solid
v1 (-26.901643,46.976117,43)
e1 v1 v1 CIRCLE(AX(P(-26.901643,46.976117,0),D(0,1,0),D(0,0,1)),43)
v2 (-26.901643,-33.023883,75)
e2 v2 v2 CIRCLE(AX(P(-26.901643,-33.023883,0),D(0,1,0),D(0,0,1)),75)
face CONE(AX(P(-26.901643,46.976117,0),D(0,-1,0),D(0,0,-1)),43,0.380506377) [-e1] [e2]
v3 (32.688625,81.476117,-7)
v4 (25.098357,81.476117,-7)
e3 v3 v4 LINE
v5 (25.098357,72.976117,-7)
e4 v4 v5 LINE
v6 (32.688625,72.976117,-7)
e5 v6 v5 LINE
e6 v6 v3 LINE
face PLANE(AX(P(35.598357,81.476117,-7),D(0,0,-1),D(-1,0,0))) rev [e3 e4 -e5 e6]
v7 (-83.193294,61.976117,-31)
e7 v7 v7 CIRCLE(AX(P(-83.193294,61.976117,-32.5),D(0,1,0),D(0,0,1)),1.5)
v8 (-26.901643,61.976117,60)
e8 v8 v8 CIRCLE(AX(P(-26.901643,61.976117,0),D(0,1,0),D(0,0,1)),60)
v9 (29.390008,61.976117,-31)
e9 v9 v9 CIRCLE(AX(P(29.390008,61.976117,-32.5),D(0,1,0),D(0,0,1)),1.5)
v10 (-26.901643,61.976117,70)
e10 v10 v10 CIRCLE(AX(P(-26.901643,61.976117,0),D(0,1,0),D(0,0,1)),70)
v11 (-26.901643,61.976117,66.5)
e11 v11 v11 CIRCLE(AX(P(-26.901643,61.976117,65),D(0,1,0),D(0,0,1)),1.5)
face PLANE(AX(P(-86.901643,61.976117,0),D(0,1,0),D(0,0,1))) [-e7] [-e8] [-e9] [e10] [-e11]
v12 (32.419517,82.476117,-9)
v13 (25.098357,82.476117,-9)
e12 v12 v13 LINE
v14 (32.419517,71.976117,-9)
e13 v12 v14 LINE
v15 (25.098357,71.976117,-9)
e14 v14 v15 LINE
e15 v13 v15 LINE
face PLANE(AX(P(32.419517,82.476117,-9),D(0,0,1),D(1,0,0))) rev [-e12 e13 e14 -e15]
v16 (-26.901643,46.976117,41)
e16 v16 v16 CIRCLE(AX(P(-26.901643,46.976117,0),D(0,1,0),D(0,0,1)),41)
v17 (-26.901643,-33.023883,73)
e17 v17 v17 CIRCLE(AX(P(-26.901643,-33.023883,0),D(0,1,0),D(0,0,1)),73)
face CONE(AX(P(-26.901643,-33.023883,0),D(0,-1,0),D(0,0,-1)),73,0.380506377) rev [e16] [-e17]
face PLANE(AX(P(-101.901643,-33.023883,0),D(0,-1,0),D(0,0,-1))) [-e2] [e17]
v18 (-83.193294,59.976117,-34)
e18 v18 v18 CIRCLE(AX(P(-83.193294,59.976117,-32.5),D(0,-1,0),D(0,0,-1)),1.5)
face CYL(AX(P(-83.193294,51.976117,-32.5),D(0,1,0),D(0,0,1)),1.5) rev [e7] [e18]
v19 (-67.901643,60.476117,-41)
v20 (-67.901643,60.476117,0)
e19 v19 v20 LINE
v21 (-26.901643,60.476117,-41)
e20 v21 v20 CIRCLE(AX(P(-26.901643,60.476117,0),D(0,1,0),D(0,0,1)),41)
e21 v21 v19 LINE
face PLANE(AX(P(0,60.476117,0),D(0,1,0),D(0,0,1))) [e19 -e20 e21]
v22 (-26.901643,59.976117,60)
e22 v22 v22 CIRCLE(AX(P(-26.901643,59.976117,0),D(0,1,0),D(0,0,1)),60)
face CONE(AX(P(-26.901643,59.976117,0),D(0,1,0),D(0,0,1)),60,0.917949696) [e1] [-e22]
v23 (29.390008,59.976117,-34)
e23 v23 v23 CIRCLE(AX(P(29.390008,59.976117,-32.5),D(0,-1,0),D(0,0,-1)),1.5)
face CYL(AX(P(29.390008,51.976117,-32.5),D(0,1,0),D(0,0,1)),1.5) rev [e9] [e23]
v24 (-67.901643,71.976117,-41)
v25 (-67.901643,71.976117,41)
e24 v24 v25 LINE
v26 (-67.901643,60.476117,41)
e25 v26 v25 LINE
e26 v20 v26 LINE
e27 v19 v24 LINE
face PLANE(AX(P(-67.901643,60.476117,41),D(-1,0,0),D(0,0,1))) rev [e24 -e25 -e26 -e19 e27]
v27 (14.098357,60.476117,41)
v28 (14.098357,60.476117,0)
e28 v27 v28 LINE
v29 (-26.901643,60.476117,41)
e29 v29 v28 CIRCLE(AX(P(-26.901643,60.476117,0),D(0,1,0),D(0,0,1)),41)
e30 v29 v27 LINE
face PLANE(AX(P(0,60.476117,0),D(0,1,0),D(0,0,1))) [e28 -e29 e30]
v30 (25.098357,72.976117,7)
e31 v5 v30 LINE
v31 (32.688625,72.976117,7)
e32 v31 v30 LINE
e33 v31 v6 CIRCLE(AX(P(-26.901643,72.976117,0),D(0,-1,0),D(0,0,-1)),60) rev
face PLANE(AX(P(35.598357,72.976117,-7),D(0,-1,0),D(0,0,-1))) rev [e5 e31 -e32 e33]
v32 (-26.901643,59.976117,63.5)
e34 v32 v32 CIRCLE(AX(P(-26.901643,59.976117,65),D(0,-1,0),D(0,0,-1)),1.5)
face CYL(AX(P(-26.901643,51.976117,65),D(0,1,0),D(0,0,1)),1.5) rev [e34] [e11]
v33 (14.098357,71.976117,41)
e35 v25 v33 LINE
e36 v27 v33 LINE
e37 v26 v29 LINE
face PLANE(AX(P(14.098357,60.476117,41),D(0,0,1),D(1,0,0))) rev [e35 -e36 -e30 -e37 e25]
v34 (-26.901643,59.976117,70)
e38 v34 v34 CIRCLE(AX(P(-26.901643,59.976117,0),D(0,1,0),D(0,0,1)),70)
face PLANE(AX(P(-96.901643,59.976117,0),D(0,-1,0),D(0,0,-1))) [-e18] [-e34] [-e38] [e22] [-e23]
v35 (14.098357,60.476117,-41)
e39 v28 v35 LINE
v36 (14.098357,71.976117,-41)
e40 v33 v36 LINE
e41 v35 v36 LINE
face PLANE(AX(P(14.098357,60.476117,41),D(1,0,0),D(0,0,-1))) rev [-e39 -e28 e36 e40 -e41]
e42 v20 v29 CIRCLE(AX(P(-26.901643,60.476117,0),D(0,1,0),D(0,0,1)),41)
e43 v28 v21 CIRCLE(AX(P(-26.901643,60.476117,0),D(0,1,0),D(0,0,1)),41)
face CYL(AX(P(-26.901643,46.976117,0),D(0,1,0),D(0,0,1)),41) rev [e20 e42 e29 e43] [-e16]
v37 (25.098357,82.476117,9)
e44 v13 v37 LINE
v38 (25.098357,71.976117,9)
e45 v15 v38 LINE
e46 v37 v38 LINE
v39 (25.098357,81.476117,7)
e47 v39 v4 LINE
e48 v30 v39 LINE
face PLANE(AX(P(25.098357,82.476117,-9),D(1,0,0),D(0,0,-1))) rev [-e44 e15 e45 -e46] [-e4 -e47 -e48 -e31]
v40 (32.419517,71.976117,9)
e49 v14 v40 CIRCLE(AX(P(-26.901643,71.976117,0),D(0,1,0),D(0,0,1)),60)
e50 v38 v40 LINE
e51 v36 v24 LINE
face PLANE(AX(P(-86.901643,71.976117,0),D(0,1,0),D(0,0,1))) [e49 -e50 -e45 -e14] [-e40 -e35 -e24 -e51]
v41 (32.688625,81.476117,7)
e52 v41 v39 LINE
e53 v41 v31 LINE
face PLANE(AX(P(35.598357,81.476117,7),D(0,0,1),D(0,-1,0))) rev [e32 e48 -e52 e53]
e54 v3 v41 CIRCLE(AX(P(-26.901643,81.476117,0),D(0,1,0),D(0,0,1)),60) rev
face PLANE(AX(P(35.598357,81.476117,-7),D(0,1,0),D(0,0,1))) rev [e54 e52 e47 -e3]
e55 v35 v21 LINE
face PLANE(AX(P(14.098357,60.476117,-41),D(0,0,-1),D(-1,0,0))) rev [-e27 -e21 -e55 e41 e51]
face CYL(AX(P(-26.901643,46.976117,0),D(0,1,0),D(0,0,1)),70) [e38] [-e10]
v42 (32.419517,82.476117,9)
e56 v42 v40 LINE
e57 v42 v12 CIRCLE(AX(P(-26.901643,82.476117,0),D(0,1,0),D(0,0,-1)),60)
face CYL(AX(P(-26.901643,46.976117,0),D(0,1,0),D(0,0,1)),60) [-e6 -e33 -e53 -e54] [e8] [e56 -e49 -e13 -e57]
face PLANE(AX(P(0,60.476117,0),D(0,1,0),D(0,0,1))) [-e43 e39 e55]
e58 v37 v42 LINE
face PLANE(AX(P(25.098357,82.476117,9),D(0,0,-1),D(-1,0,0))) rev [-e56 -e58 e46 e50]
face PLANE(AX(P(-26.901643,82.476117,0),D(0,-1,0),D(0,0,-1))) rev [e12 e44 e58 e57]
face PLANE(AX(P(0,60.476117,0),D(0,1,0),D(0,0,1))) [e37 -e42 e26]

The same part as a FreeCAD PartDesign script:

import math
import FreeCAD as App
import Part
import Sketcher

V = App.Vector
Q = App.Units.Quantity

doc = App.newDocument("Part")
params = doc.addObject("Spreadsheet::Sheet", "Params")
for row, (alias, value) in enumerate([
    ("sketch1_width", "19 mm"),
    ("sketch1_width2", "10 mm"),
    ("sketch1_width3", "2 mm"),
    ("sketch1_height", "25 mm"),
    ("sketch1_height2", "105 mm"),
    ("revolution_angle", "360 deg"),
    ("sketch2_width", "82 mm"),
    ("pocket1_length", "11.5 mm"),
    ("sketch3_radius", "60 mm"),
    ("sketch3_height", "18 mm"),
    ("pad1_length", "10.5 mm"),
    ("sketch4_height", "14 mm"),
    ("sketch4_width", "8.5 mm"),
    ("pocket2_length", "10.5 mm"),
    ("sketch5_diameter", "3 mm"),
    ("pocket3_length", "10 mm"),
], start=1):
    params.set(f"A{row}", alias)
    params.set(f"B{row}", "=" + value)
    params.setAlias(f"B{row}", alias)

body = doc.addObject("PartDesign::Body", "Body")

# Sketch on XY plane
sketch1 = doc.addObject("Sketcher::SketchObject", "Sketch")
body.addObject(sketch1)
sketch1.AttachmentSupport = (doc.XY_Plane, [""])
sketch1.MapMode = "FlatFace"
sketch1.addGeometry([
    Part.LineSegment(V(-67.901643, 46.976117, 0), V(-67.901643, 71.976117, 0)),  # 0
    Part.LineSegment(V(-67.901643, 71.976117, 0), V(-86.901643, 71.976117, 0)),  # 1
    Part.LineSegment(V(-86.901643, 71.976117, 0), V(-86.901643, 61.976117, 0)),  # 2
    Part.LineSegment(V(-86.901643, 61.976117, 0), V(-96.901643, 61.976117, 0)),  # 3
    Part.LineSegment(V(-96.901643, 61.976117, 0), V(-96.901643, 59.976117, 0)),  # 4
    Part.LineSegment(V(-96.901643, 59.976117, 0), V(-86.901643, 59.976117, 0)),  # 5
    Part.LineSegment(V(-86.901643, 59.976117, 0), V(-69.901643, 46.976117, 0)),  # 6
    Part.LineSegment(V(-69.901643, 46.976117, 0), V(-101.901643, -33.023883, 0)),  # 7
    Part.LineSegment(V(-101.901643, -33.023883, 0), V(-99.901643, -33.023883, 0)),  # 8
    Part.LineSegment(V(-99.901643, -33.023883, 0), V(-67.901643, 46.976117, 0)),  # 9
], False)
sketch1.addGeometry(Part.LineSegment(V(-26.901643, 71.976117, 0), V(-26.901643, -33.023883, 0)), True)  # axis
sketch1.addConstraint([
    Sketcher.Constraint("Coincident", 0, 2, 1, 1),
    Sketcher.Constraint("Coincident", 1, 2, 2, 1),
    Sketcher.Constraint("Coincident", 2, 2, 3, 1),
    Sketcher.Constraint("Coincident", 3, 2, 4, 1),
    Sketcher.Constraint("Coincident", 4, 2, 5, 1),
    Sketcher.Constraint("Coincident", 5, 2, 6, 1),
    Sketcher.Constraint("Coincident", 6, 2, 7, 1),
    Sketcher.Constraint("Coincident", 7, 2, 8, 1),
    Sketcher.Constraint("Coincident", 8, 2, 9, 1),
    Sketcher.Constraint("Coincident", 9, 2, 0, 1),
    Sketcher.Constraint("Vertical", 0),
    Sketcher.Constraint("Horizontal", 1),
    Sketcher.Constraint("Vertical", 2),
    Sketcher.Constraint("Horizontal", 3),
    Sketcher.Constraint("Vertical", 4),
    Sketcher.Constraint("Horizontal", 5),
    Sketcher.Constraint("Horizontal", 8),
    Sketcher.Constraint("Vertical", 10),
    Sketcher.Constraint("Parallel", 7, 9),
    Sketcher.Constraint("Horizontal", 6, 2, 9, 2),
    Sketcher.Constraint("Horizontal", 1, 2, 10, 1),
    Sketcher.Constraint("Horizontal", 8, 2, 10, 2),
    Sketcher.Constraint("Vertical", 2, 2, 5, 2),
    Sketcher.Constraint("Equal", 5, 2),
    Sketcher.Constraint("Equal", 8, 4),
    Sketcher.Constraint("DistanceX", 1, 2, 1, 1, Q("19 mm")),
    Sketcher.Constraint("DistanceX", 3, 2, 3, 1, Q("10 mm")),
    Sketcher.Constraint("DistanceX", 8, 1, 8, 2, Q("2 mm")),
    Sketcher.Constraint("DistanceY", 0, 1, 0, 2, Q("25 mm")),
    Sketcher.Constraint("DistanceY", 10, 2, 10, 1, Q("105 mm")),
    Sketcher.Constraint("DistanceX", 7, 2, 6, 2, Q("32 mm")),
    Sketcher.Constraint("DistanceX", 0, 2, 10, 1, Q("41 mm")),
    Sketcher.Constraint("DistanceX", 0, 2, -1, 1, Q("67.901643 mm")),
    Sketcher.Constraint("DistanceY", -1, 1, 0, 2, Q("71.976117 mm")),
])
sketch1.setExpression("Constraints[25]", "Params.sketch1_width")
sketch1.setExpression("Constraints[26]", "Params.sketch1_width2")
sketch1.setExpression("Constraints[27]", "Params.sketch1_width3")
sketch1.setExpression("Constraints[28]", "Params.sketch1_height")
sketch1.setExpression("Constraints[29]", "Params.sketch1_height2")
revolution = doc.addObject("PartDesign::Revolution", "Revolution")
body.addObject(revolution)
revolution.Profile = sketch1
revolution.ReferenceAxis = (sketch1, ["Axis0"])
revolution.setExpression("Angle", "Params.revolution_angle")

# Sketch on XZ plane
sketch2 = doc.addObject("Sketcher::SketchObject", "Sketch001")
body.addObject(sketch2)
sketch2.AttachmentSupport = (doc.XZ_Plane, [""])
sketch2.MapMode = "FlatFace"
sketch2.AttachmentOffset = App.Placement(V(0, 0, -71.976117), App.Rotation())
sketch2.addGeometry([
    Part.LineSegment(V(-67.901643, -41, 0), V(-67.901643, 41, 0)),
    Part.LineSegment(V(-67.901643, 41, 0), V(14.098357, 41, 0)),
    Part.LineSegment(V(14.098357, 41, 0), V(14.098357, -41, 0)),
    Part.LineSegment(V(14.098357, -41, 0), V(-67.901643, -41, 0)),
], False)
sketch2.addConstraint([
    Sketcher.Constraint("Coincident", 0, 2, 1, 1),
    Sketcher.Constraint("Coincident", 1, 2, 2, 1),
    Sketcher.Constraint("Coincident", 2, 2, 3, 1),
    Sketcher.Constraint("Coincident", 3, 2, 0, 1),
    Sketcher.Constraint("Vertical", 0),
    Sketcher.Constraint("Horizontal", 1),
    Sketcher.Constraint("Vertical", 2),
    Sketcher.Constraint("Horizontal", 3),
    Sketcher.Constraint("Equal", 3, 0),
    Sketcher.Constraint("DistanceX", 1, 1, 1, 2, Q("82 mm")),
    Sketcher.Constraint("DistanceY", -1, 1, 0, 2, Q("41 mm")),
    Sketcher.Constraint("DistanceX", 0, 2, -1, 1, Q("67.901643 mm")),
])
sketch2.setExpression("Constraints[9]", "Params.sketch2_width")
pocket1 = doc.addObject("PartDesign::Pocket", "Pocket")
body.addObject(pocket1)
pocket1.Profile = sketch2
pocket1.setExpression("Length", "Params.pocket1_length")
pocket1.Reversed = True

# Sketch on XZ plane
sketch3 = doc.addObject("Sketcher::SketchObject", "Sketch002")
body.addObject(sketch3)
sketch3.AttachmentSupport = (doc.XZ_Plane, [""])
sketch3.MapMode = "FlatFace"
sketch3.AttachmentOffset = App.Placement(V(0, 0, -71.976117), App.Rotation())
sketch3.addGeometry([
    Part.LineSegment(V(32.419517, -9, 0), V(25.098357, -9, 0)),
    Part.LineSegment(V(25.098357, -9, 0), V(25.098357, 9, 0)),
    Part.LineSegment(V(25.098357, 9, 0), V(32.419517, 9, 0)),
    Part.ArcOfCircle(Part.Circle(V(-26.901643, 0, 0), V(0, 0, 1), 60), math.radians(-8.626927), math.radians(8.626927)),
], False)
sketch3.addConstraint([
    Sketcher.Constraint("Coincident", 0, 2, 1, 1),
    Sketcher.Constraint("Coincident", 1, 2, 2, 1),
    Sketcher.Constraint("Coincident", 2, 2, 3, 2),
    Sketcher.Constraint("Coincident", 3, 1, 0, 1),
    Sketcher.Constraint("Horizontal", 0),
    Sketcher.Constraint("Vertical", 1),
    Sketcher.Constraint("Horizontal", 2),
    Sketcher.Constraint("Symmetric", 2, 2, 3, 1, -1),
    Sketcher.Constraint("Radius", 3, Q("60 mm")),
    Sketcher.Constraint("DistanceY", 1, 1, 1, 2, Q("18 mm")),
    Sketcher.Constraint("DistanceX", 3, 3, 0, 2, Q("52 mm")),
    Sketcher.Constraint("DistanceX", 3, 3, -1, 1, Q("26.901643 mm")),
])
sketch3.setExpression("Constraints[8]", "Params.sketch3_radius")
sketch3.setExpression("Constraints[9]", "Params.sketch3_height")
pad1 = doc.addObject("PartDesign::Pad", "Pad")
body.addObject(pad1)
pad1.Profile = sketch3
pad1.setExpression("Length", "Params.pad1_length")
pad1.Reversed = True

# Sketch on YZ plane
sketch4 = doc.addObject("Sketcher::SketchObject", "Sketch003")
body.addObject(sketch4)
sketch4.AttachmentSupport = (doc.YZ_Plane, [""])
sketch4.MapMode = "FlatFace"
sketch4.AttachmentOffset = App.Placement(V(0, 0, 25.098357), App.Rotation())
sketch4.addGeometry([
    Part.LineSegment(V(81.476117, -7, 0), V(72.976117, -7, 0)),
    Part.LineSegment(V(72.976117, -7, 0), V(72.976117, 7, 0)),
    Part.LineSegment(V(72.976117, 7, 0), V(81.476117, 7, 0)),
    Part.LineSegment(V(81.476117, 7, 0), V(81.476117, -7, 0)),
], False)
sketch4.addConstraint([
    Sketcher.Constraint("Coincident", 0, 2, 1, 1),
    Sketcher.Constraint("Coincident", 1, 2, 2, 1),
    Sketcher.Constraint("Coincident", 2, 2, 3, 1),
    Sketcher.Constraint("Coincident", 3, 2, 0, 1),
    Sketcher.Constraint("Horizontal", 0),
    Sketcher.Constraint("Vertical", 1),
    Sketcher.Constraint("Horizontal", 2),
    Sketcher.Constraint("Vertical", 3),
    Sketcher.Constraint("DistanceY", 1, 1, 1, 2, Q("14 mm")),
    Sketcher.Constraint("DistanceX", 0, 2, 0, 1, Q("8.5 mm")),
    Sketcher.Constraint("DistanceY", 0, 2, -1, 1, Q("7 mm")),
    Sketcher.Constraint("DistanceX", -1, 1, 0, 2, Q("72.976117 mm")),
])
sketch4.setExpression("Constraints[8]", "Params.sketch4_height")
sketch4.setExpression("Constraints[9]", "Params.sketch4_width")
pocket2 = doc.addObject("PartDesign::Pocket", "Pocket001")
body.addObject(pocket2)
pocket2.Profile = sketch4
pocket2.setExpression("Length", "Params.pocket2_length")
pocket2.Reversed = True

# Sketch on XZ plane
sketch5 = doc.addObject("Sketcher::SketchObject", "Sketch004")
body.addObject(sketch5)
sketch5.AttachmentSupport = (doc.XZ_Plane, [""])
sketch5.MapMode = "FlatFace"
sketch5.AttachmentOffset = App.Placement(V(0, 0, -61.976117), App.Rotation())
sketch5.addGeometry([
    Part.Circle(V(-26.901643, 65, 0), V(0, 0, 1), 1.5),
    Part.Circle(V(-83.193294, -32.5, 0), V(0, 0, 1), 1.5),
    Part.Circle(V(29.390008, -32.5, 0), V(0, 0, 1), 1.5),
], False)
sketch5.addConstraint([
    Sketcher.Constraint("Equal", 0, 1),
    Sketcher.Constraint("Equal", 1, 2),
    Sketcher.Constraint("Horizontal", 1, 3, 2, 3),
    Sketcher.Constraint("Diameter", 0, Q("3 mm")),
    Sketcher.Constraint("DistanceY", -1, 1, 0, 3, Q("65 mm")),
    Sketcher.Constraint("DistanceY", 1, 3, -1, 1, Q("32.5 mm")),
    Sketcher.Constraint("DistanceX", -1, 1, 2, 3, Q("29.390008 mm")),
    Sketcher.Constraint("DistanceX", 1, 3, 0, 3, Q("56.291651 mm")),
    Sketcher.Constraint("DistanceX", 0, 3, 2, 3, Q("56.291651 mm")),
])
sketch5.setExpression("Constraints[3]", "Params.sketch5_diameter")
pocket3 = doc.addObject("PartDesign::Pocket", "Pocket002")
body.addObject(pocket3)
pocket3.Profile = sketch5
pocket3.setExpression("Length", "Params.pocket3_length")
pocket3.Reversed = True

doc.recompute()
